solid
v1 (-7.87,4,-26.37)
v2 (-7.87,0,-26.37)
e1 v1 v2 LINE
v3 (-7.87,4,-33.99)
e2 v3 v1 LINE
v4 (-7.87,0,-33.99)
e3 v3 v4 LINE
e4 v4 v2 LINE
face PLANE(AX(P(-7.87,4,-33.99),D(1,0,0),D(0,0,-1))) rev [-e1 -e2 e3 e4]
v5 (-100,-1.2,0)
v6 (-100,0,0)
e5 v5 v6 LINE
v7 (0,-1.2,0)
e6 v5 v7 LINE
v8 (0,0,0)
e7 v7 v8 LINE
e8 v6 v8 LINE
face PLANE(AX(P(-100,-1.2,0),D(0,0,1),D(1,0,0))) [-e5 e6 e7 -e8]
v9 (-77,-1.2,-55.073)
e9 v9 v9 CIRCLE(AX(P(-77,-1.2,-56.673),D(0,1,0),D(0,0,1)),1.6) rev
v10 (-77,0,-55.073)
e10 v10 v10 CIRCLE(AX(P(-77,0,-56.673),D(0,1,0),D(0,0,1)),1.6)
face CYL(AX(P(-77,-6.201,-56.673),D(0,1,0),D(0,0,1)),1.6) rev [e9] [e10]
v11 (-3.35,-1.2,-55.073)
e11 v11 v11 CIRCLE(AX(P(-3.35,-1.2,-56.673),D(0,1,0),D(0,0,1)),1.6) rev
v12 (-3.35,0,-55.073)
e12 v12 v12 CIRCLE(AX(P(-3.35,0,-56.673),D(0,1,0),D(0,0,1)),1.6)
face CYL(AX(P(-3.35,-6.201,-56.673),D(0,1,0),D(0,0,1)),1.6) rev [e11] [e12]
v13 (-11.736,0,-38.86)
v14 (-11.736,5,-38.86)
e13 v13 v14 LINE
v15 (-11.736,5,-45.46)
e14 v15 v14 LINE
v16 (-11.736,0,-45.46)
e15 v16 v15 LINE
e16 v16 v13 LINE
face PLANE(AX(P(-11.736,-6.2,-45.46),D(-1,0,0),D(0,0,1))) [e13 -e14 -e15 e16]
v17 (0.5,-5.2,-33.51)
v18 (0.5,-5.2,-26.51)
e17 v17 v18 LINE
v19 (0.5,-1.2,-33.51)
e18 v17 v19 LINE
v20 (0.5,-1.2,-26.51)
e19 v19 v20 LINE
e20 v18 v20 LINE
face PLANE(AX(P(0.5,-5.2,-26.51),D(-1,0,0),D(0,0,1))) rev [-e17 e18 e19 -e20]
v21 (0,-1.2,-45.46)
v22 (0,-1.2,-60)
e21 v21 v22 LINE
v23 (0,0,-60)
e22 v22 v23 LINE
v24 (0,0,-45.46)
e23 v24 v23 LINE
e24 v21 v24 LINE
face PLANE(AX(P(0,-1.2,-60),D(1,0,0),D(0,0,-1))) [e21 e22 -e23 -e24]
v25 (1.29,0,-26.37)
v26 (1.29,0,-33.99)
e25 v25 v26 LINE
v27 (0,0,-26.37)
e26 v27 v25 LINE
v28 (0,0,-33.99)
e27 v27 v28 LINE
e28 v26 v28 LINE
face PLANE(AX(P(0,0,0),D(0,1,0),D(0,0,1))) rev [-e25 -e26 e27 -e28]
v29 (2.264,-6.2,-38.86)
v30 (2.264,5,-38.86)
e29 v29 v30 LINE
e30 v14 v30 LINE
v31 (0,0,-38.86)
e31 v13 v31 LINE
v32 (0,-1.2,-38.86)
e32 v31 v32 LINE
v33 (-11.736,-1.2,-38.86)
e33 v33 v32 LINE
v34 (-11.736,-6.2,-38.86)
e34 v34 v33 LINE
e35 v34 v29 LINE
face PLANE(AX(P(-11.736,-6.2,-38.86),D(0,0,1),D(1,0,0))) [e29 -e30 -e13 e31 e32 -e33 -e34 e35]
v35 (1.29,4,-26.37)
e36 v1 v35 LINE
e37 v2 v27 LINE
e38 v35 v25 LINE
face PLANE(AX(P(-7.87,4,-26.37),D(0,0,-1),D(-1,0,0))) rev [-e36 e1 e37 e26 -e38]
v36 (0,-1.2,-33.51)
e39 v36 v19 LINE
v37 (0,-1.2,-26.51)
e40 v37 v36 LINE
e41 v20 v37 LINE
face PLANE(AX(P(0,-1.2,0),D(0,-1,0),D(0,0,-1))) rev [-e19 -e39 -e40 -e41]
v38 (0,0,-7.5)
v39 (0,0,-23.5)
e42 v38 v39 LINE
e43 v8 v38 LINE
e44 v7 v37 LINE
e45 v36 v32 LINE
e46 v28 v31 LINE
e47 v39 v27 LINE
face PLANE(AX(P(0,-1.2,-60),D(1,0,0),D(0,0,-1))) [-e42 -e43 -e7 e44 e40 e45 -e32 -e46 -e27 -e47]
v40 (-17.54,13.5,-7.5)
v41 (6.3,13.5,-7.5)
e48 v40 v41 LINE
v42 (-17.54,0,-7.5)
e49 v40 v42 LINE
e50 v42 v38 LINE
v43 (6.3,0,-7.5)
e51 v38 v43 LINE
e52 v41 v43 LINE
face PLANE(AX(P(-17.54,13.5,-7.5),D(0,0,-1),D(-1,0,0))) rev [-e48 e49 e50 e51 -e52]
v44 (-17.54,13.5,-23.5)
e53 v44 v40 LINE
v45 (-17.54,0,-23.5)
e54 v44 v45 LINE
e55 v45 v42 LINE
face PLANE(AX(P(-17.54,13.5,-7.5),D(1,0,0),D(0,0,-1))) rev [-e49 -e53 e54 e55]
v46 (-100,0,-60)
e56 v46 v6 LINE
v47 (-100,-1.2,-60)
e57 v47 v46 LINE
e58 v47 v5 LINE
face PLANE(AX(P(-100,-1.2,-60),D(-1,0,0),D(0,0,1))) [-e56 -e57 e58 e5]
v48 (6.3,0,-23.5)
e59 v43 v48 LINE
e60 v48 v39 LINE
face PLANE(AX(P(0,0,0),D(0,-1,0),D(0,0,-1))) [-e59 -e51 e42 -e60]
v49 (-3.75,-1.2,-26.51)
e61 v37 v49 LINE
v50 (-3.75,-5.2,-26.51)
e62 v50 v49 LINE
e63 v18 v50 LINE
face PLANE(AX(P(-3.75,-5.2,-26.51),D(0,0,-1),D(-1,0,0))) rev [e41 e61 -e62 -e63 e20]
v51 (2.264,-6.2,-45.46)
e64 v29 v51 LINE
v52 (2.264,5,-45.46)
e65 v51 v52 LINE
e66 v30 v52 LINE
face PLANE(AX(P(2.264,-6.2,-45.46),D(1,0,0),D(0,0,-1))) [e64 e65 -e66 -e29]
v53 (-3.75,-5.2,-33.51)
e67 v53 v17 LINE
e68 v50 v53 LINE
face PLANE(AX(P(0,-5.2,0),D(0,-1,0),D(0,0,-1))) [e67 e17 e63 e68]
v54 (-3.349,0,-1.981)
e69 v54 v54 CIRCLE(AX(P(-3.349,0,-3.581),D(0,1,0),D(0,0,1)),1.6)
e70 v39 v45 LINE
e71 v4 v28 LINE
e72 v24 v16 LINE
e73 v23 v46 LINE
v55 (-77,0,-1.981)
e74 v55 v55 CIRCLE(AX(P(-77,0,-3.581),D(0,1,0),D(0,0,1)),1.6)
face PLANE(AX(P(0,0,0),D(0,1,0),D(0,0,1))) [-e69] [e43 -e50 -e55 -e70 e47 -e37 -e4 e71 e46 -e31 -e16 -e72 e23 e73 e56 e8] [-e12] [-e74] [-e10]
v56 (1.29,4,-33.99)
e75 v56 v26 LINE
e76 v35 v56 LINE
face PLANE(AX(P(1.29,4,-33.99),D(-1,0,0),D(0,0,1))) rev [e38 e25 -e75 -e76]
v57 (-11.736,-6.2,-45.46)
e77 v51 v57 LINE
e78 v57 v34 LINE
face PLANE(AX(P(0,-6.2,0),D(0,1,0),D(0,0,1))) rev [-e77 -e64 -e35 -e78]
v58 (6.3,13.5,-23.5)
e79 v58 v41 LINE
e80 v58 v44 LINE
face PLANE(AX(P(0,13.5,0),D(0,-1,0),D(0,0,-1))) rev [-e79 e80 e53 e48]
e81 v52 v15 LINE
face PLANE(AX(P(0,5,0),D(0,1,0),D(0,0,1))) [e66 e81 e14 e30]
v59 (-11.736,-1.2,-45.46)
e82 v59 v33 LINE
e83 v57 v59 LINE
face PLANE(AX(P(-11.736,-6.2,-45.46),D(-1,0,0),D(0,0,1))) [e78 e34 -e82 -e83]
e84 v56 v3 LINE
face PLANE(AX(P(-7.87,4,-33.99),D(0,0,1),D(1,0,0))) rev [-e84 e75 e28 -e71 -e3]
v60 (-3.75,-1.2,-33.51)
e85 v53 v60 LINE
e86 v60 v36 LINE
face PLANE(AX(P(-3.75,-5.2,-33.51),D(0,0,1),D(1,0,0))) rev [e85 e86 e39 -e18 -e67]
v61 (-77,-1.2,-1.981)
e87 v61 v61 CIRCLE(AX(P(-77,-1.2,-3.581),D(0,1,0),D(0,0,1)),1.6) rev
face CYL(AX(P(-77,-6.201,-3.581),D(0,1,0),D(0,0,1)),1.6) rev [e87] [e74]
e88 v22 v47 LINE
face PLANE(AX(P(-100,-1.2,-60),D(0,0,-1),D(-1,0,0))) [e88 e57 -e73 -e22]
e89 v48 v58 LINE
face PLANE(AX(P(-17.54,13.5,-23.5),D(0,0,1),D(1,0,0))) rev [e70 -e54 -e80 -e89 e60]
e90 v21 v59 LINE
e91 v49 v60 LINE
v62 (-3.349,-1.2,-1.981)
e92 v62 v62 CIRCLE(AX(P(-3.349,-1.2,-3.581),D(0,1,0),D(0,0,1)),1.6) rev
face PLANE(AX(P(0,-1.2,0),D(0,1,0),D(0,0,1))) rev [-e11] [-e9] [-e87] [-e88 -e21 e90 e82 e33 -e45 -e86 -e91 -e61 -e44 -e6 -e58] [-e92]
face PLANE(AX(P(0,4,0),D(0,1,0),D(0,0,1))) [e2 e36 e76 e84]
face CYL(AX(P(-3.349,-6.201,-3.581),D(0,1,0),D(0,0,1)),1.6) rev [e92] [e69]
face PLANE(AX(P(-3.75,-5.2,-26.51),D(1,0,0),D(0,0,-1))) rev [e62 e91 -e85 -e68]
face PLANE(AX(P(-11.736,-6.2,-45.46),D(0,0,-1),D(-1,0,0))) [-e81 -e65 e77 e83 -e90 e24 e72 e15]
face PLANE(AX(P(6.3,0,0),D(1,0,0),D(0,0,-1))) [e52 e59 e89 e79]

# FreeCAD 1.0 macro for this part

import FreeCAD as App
import Part
import Sketcher
Q = App.Units.Quantity

doc = App.newDocument("Part")
body = doc.addObject("PartDesign::Body", "Body")

# Sketch on XZ plane
sketch1 = doc.addObject("Sketcher::SketchObject", "Sketch")
body.addObject(sketch1)
sketch1.AttachmentSupport = (doc.XZ_Plane, [""])
sketch1.MapMode = "FlatFace"
sketch1.addGeometry([
    Part.LineSegment(App.Vector(-100, -60, 0), App.Vector(-100, 0, 0)),
    Part.LineSegment(App.Vector(-100, 0, 0), App.Vector(0, 0, 0)),
    Part.LineSegment(App.Vector(0, 0, 0), App.Vector(0, -60, 0)),
    Part.LineSegment(App.Vector(0, -60, 0), App.Vector(-100, -60, 0)),
], False)
sketch1.addConstraint([
    Sketcher.Constraint("Coincident", 0, 2, 1, 1),
    Sketcher.Constraint("Coincident", 1, 2, 2, 1),
    Sketcher.Constraint("Coincident", 2, 2, 3, 1),
    Sketcher.Constraint("Coincident", 3, 2, 0, 1),
    Sketcher.Constraint("Vertical", 0),
    Sketcher.Constraint("Horizontal", 1),
    Sketcher.Constraint("Vertical", 2),
    Sketcher.Constraint("Horizontal", 3),
    Sketcher.Constraint("Coincident", 1, 2, -1, 1),
    Sketcher.Constraint("DistanceX", 1, 1, 1, 2, Q("100 mm")),
    Sketcher.Constraint("DistanceY", 0, 1, 0, 2, Q("60 mm")),
])
pad1 = doc.addObject("PartDesign::Pad", "Pad")
body.addObject(pad1)
pad1.Profile = sketch1
pad1.Length = 1.2

# Sketch on XZ plane
sketch2 = doc.addObject("Sketcher::SketchObject", "Sketch001")
body.addObject(sketch2)
sketch2.AttachmentSupport = (doc.XZ_Plane, [""])
sketch2.MapMode = "FlatFace"
sketch2.addGeometry([
    Part.LineSegment(App.Vector(-18, -24, 0), App.Vector(-18, -8, 0)),
    Part.LineSegment(App.Vector(-18, -8, 0), App.Vector(4, -8, 0)),
    Part.LineSegment(App.Vector(4, -8, 0), App.Vector(4, -24, 0)),
    Part.LineSegment(App.Vector(4, -24, 0), App.Vector(-18, -24, 0)),
], False)
sketch2.addConstraint([
    Sketcher.Constraint("Coincident", 0, 2, 1, 1),
    Sketcher.Constraint("Coincident", 1, 2, 2, 1),
    Sketcher.Constraint("Coincident", 2, 2, 3, 1),
    Sketcher.Constraint("Coincident", 3, 2, 0, 1),
    Sketcher.Constraint("Vertical", 0),
    Sketcher.Constraint("Horizontal", 1),
    Sketcher.Constraint("Vertical", 2),
    Sketcher.Constraint("Horizontal", 3),
    Sketcher.Constraint("DistanceY", 0, 1, 0, 2, Q("16 mm")),
    Sketcher.Constraint("DistanceX", 1, 1, 1, 2, Q("21.84 mm")),
    Sketcher.Constraint("DistanceY", 0, 2, -1, 1, Q("7.5 mm")),
    Sketcher.Constraint("DistanceX", -1, 1, 1, 2, Q("4.3 mm")),
])
pad2 = doc.addObject("PartDesign::Pad", "Pad001")
body.addObject(pad2)
pad2.Profile = sketch2
pad2.Length = 13.5
pad2.Reversed = True

# Sketch on XZ plane
sketch3 = doc.addObject("Sketcher::SketchObject", "Sketch002")
body.addObject(sketch3)
sketch3.AttachmentSupport = (doc.XZ_Plane, [""])
sketch3.MapMode = "FlatFace"
sketch3.addGeometry([
    Part.LineSegment(App.Vector(-8, -34, 0), App.Vector(-8, -26, 0)),
    Part.LineSegment(App.Vector(-8, -26, 0), App.Vector(1, -26, 0)),
    Part.LineSegment(App.Vector(1, -26, 0), App.Vector(1, -34, 0)),
    Part.LineSegment(App.Vector(1, -34, 0), App.Vector(-8, -34, 0)),
], False)
sketch3.addConstraint([
    Sketcher.Constraint("Coincident", 0, 2, 1, 1),
    Sketcher.Constraint("Coincident", 1, 2, 2, 1),
    Sketcher.Constraint("Coincident", 2, 2, 3, 1),
    Sketcher.Constraint("Coincident", 3, 2, 0, 1),
    Sketcher.Constraint("Vertical", 0),
    Sketcher.Constraint("Horizontal", 1),
    Sketcher.Constraint("Vertical", 2),
    Sketcher.Constraint("Horizontal", 3),
    Sketcher.Constraint("DistanceX", 1, 1, 1, 2, Q("9.16 mm")),
    Sketcher.Constraint("DistanceY", 0, 1, 0, 2, Q("7.62 mm")),
    Sketcher.Constraint("DistanceX", 0, 2, -1, 1, Q("7.87 mm")),
    Sketcher.Constraint("DistanceY", 0, 2, -1, 1, Q("26.37 mm")),
])
pad3 = doc.addObject("PartDesign::Pad", "Pad002")
body.addObject(pad3)
pad3.Profile = sketch3
pad3.Length = 4
pad3.Reversed = True

# Sketch on XZ plane
sketch4 = doc.addObject("Sketcher::SketchObject", "Sketch003")
body.addObject(sketch4)
sketch4.AttachmentSupport = (doc.XZ_Plane, [""])
sketch4.MapMode = "FlatFace"
sketch4.addGeometry([
    Part.LineSegment(App.Vector(-12, -45, 0), App.Vector(-12, -39, 0)),
    Part.LineSegment(App.Vector(-12, -39, 0), App.Vector(2, -39, 0)),
    Part.LineSegment(App.Vector(2, -39, 0), App.Vector(2, -45, 0)),
    Part.LineSegment(App.Vector(2, -45, 0), App.Vector(-12, -45, 0)),
], False)
sketch4.addConstraint([
    Sketcher.Constraint("Coincident", 0, 2, 1, 1),
    Sketcher.Constraint("Coincident", 1, 2, 2, 1),
    Sketcher.Constraint("Coincident", 2, 2, 3, 1),
    Sketcher.Constraint("Coincident", 3, 2, 0, 1),
    Sketcher.Constraint("Vertical", 0),
    Sketcher.Constraint("Horizontal", 1),
    Sketcher.Constraint("Vertical", 2),
    Sketcher.Constraint("Horizontal", 3),
    Sketcher.Constraint("DistanceX", 1, 1, 1, 2, Q("14 mm")),
    Sketcher.Constraint("DistanceY", 0, 1, 0, 2, Q("6.6 mm")),
    Sketcher.Constraint("DistanceY", 0, 2, -1, 1, Q("38.86 mm")),
    Sketcher.Constraint("DistanceX", 0, 2, -1, 1, Q("11.736 mm")),
])
pad4 = doc.addObject("PartDesign::Pad", "Pad003")
body.addObject(pad4)
pad4.Profile = sketch4
pad4.Type = "TwoLengths"
pad4.Length = 5
pad4.Length2 = 6.2
pad4.Reversed = True

# Sketch on XZ plane
sketch5 = doc.addObject("Sketcher::SketchObject", "Sketch004")
body.addObject(sketch5)
sketch5.AttachmentSupport = (doc.XZ_Plane, [""])
sketch5.MapMode = "FlatFace"
sketch5.AttachmentOffset = App.Placement(App.Vector(0, 0, 1.2), App.Rotation())
sketch5.addGeometry([
    Part.LineSegment(App.Vector(-3.8, -26.5, 0), App.Vector(-3.8, -33.5, 0)),
    Part.LineSegment(App.Vector(-3.8, -33.5, 0), App.Vector(0.5, -33.5, 0)),
    Part.LineSegment(App.Vector(0.5, -33.5, 0), App.Vector(0.5, -26.5, 0)),
    Part.LineSegment(App.Vector(0.5, -26.5, 0), App.Vector(-3.8, -26.5, 0)),
], False)
sketch5.addConstraint([
    Sketcher.Constraint("Coincident", 0, 2, 1, 1),
    Sketcher.Constraint("Coincident", 1, 2, 2, 1),
    Sketcher.Constraint("Coincident", 2, 2, 3, 1),
    Sketcher.Constraint("Coincident", 3, 2, 0, 1),
    Sketcher.Constraint("Vertical", 0),
    Sketcher.Constraint("Horizontal", 1),
    Sketcher.Constraint("Vertical", 2),
    Sketcher.Constraint("Horizontal", 3),
    Sketcher.Constraint("DistanceY", 0, 2, 0, 1, Q("7 mm")),
    Sketcher.Constraint("DistanceX", 1, 1, 1, 2, Q("4.25 mm")),
    Sketcher.Constraint("DistanceX", -1, 1, 1, 2, Q("0.5 mm")),
    Sketcher.Constraint("DistanceY", 0, 2, -1, 1, Q("33.51 mm")),
])
pad5 = doc.addObject("PartDesign::Pad", "Pad004")
body.addObject(pad5)
pad5.Profile = sketch5
pad5.Length = 4

# Sketch on XZ plane
sketch6 = doc.addObject("Sketcher::SketchObject", "Sketch005")
body.addObject(sketch6)
sketch6.AttachmentSupport = (doc.XZ_Plane, [""])
sketch6.MapMode = "FlatFace"
sketch6.addGeometry(Part.Circle(App.Vector(-77, -56.7, 0), App.Vector(0, 0, 1), 1.6), False)
sketch6.addConstraint([
    Sketcher.Constraint("Diameter", 0, Q("3.2 mm")),
    Sketcher.Constraint("DistanceX", 0, 3, -1, 1, Q("77 mm")),
    Sketcher.Constraint("DistanceY", 0, 3, -1, 1, Q("56.673 mm")),
])
pocket1 = doc.addObject("PartDesign::Pocket", "Pocket")
body.addObject(pocket1)
pocket1.Profile = sketch6
pocket1.Type = "UpToFirst"
pocket1.Reversed = True

# Sketch on XZ plane
sketch7 = doc.addObject("Sketcher::SketchObject", "Sketch006")
body.addObject(sketch7)
sketch7.AttachmentSupport = (doc.XZ_Plane, [""])
sketch7.MapMode = "FlatFace"
sketch7.addGeometry(Part.Circle(App.Vector(-77, -3.6, 0), App.Vector(0, 0, 1), 1.6), False)
sketch7.addConstraint([
    Sketcher.Constraint("Diameter", 0, Q("3.2 mm")),
    Sketcher.Constraint("DistanceX", 0, 3, -1, 1, Q("77 mm")),
    Sketcher.Constraint("DistanceY", 0, 3, -1, 1, Q("3.581 mm")),
])
pocket2 = doc.addObject("PartDesign::Pocket", "Pocket001")
body.addObject(pocket2)
pocket2.Profile = sketch7
pocket2.Type = "UpToFirst"
pocket2.Reversed = True

# Sketch on XZ plane
sketch8 = doc.addObject("Sketcher::SketchObject", "Sketch007")
body.addObject(sketch8)
sketch8.AttachmentSupport = (doc.XZ_Plane, [""])
sketch8.MapMode = "FlatFace"
sketch8.addGeometry(Part.Circle(App.Vector(-3.4, -56.7, 0), App.Vector(0, 0, 1), 1.6), False)
sketch8.addConstraint([
    Sketcher.Constraint("Diameter", 0, Q("3.2 mm")),
    Sketcher.Constraint("DistanceX", 0, 3, -1, 1, Q("3.35 mm")),
    Sketcher.Constraint("DistanceY", 0, 3, -1, 1, Q("56.673 mm")),
])
pocket3 = doc.addObject("PartDesign::Pocket", "Pocket002")
body.addObject(pocket3)
pocket3.Profile = sketch8
pocket3.Type = "UpToFirst"
pocket3.Reversed = True

# Sketch on XZ plane
sketch9 = doc.addObject("Sketcher::SketchObject", "Sketch008")
body.addObject(sketch9)
sketch9.AttachmentSupport = (doc.XZ_Plane, [""])
sketch9.MapMode = "FlatFace"
sketch9.addGeometry(Part.Circle(App.Vector(-3.3, -3.6, 0), App.Vector(0, 0, 1), 1.6), False)
sketch9.addConstraint([
    Sketcher.Constraint("Diameter", 0, Q("3.2 mm")),
    Sketcher.Constraint("DistanceX", 0, 3, -1, 1, Q("3.349 mm")),
    Sketcher.Constraint("DistanceY", 0, 3, -1, 1, Q("3.581 mm")),
])
pocket4 = doc.addObject("PartDesign::Pocket", "Pocket003")
body.addObject(pocket4)
pocket4.Profile = sketch9
pocket4.Type = "UpToFirst"
pocket4.Reversed = True

# Sketch on YZ plane
sketch10 = doc.addObject("Sketcher::SketchObject", "Sketch009")
body.addObject(sketch10)
sketch10.AttachmentSupport = (doc.YZ_Plane, [""])
sketch10.MapMode = "FlatFace"
sketch10.AttachmentOffset = App.Placement(App.Vector(0, 0, 4.3), App.Rotation())
sketch10.addGeometry([
    Part.LineSegment(App.Vector(14, -8, 0), App.Vector(0, -8, 0)),
    Part.LineSegment(App.Vector(0, -8, 0), App.Vector(0, -24, 0)),
    Part.LineSegment(App.Vector(0, -24, 0), App.Vector(14, -24, 0)),
    Part.LineSegment(App.Vector(14, -24, 0), App.Vector(14, -8, 0)),
], False)
sketch10.addConstraint([
    Sketcher.Constraint("Coincident", 0, 2, 1, 1),
    Sketcher.Constraint("Coincident", 1, 2, 2, 1),
    Sketcher.Constraint("Coincident", 2, 2, 3, 1),
    Sketcher.Constraint("Coincident", 3, 2, 0, 1),
    Sketcher.Constraint("Horizontal", 0),
    Sketcher.Constraint("Vertical", 1),
    Sketcher.Constraint("Horizontal", 2),
    Sketcher.Constraint("Vertical", 3),
    Sketcher.Constraint("PointOnObject", 0, 2, -2),
    Sketcher.Constraint("DistanceY", 1, 2, 1, 1, Q("16 mm")),
    Sketcher.Constraint("DistanceX", 0, 2, 0, 1, Q("13.5 mm")),
    Sketcher.Constraint("DistanceY", 0, 2, -1, 1, Q("7.5 mm")),
])
pad6 = doc.addObject("PartDesign::Pad", "Pad005")
body.addObject(pad6)
pad6.Profile = sketch10
pad6.Length = 2

doc.recompute()
